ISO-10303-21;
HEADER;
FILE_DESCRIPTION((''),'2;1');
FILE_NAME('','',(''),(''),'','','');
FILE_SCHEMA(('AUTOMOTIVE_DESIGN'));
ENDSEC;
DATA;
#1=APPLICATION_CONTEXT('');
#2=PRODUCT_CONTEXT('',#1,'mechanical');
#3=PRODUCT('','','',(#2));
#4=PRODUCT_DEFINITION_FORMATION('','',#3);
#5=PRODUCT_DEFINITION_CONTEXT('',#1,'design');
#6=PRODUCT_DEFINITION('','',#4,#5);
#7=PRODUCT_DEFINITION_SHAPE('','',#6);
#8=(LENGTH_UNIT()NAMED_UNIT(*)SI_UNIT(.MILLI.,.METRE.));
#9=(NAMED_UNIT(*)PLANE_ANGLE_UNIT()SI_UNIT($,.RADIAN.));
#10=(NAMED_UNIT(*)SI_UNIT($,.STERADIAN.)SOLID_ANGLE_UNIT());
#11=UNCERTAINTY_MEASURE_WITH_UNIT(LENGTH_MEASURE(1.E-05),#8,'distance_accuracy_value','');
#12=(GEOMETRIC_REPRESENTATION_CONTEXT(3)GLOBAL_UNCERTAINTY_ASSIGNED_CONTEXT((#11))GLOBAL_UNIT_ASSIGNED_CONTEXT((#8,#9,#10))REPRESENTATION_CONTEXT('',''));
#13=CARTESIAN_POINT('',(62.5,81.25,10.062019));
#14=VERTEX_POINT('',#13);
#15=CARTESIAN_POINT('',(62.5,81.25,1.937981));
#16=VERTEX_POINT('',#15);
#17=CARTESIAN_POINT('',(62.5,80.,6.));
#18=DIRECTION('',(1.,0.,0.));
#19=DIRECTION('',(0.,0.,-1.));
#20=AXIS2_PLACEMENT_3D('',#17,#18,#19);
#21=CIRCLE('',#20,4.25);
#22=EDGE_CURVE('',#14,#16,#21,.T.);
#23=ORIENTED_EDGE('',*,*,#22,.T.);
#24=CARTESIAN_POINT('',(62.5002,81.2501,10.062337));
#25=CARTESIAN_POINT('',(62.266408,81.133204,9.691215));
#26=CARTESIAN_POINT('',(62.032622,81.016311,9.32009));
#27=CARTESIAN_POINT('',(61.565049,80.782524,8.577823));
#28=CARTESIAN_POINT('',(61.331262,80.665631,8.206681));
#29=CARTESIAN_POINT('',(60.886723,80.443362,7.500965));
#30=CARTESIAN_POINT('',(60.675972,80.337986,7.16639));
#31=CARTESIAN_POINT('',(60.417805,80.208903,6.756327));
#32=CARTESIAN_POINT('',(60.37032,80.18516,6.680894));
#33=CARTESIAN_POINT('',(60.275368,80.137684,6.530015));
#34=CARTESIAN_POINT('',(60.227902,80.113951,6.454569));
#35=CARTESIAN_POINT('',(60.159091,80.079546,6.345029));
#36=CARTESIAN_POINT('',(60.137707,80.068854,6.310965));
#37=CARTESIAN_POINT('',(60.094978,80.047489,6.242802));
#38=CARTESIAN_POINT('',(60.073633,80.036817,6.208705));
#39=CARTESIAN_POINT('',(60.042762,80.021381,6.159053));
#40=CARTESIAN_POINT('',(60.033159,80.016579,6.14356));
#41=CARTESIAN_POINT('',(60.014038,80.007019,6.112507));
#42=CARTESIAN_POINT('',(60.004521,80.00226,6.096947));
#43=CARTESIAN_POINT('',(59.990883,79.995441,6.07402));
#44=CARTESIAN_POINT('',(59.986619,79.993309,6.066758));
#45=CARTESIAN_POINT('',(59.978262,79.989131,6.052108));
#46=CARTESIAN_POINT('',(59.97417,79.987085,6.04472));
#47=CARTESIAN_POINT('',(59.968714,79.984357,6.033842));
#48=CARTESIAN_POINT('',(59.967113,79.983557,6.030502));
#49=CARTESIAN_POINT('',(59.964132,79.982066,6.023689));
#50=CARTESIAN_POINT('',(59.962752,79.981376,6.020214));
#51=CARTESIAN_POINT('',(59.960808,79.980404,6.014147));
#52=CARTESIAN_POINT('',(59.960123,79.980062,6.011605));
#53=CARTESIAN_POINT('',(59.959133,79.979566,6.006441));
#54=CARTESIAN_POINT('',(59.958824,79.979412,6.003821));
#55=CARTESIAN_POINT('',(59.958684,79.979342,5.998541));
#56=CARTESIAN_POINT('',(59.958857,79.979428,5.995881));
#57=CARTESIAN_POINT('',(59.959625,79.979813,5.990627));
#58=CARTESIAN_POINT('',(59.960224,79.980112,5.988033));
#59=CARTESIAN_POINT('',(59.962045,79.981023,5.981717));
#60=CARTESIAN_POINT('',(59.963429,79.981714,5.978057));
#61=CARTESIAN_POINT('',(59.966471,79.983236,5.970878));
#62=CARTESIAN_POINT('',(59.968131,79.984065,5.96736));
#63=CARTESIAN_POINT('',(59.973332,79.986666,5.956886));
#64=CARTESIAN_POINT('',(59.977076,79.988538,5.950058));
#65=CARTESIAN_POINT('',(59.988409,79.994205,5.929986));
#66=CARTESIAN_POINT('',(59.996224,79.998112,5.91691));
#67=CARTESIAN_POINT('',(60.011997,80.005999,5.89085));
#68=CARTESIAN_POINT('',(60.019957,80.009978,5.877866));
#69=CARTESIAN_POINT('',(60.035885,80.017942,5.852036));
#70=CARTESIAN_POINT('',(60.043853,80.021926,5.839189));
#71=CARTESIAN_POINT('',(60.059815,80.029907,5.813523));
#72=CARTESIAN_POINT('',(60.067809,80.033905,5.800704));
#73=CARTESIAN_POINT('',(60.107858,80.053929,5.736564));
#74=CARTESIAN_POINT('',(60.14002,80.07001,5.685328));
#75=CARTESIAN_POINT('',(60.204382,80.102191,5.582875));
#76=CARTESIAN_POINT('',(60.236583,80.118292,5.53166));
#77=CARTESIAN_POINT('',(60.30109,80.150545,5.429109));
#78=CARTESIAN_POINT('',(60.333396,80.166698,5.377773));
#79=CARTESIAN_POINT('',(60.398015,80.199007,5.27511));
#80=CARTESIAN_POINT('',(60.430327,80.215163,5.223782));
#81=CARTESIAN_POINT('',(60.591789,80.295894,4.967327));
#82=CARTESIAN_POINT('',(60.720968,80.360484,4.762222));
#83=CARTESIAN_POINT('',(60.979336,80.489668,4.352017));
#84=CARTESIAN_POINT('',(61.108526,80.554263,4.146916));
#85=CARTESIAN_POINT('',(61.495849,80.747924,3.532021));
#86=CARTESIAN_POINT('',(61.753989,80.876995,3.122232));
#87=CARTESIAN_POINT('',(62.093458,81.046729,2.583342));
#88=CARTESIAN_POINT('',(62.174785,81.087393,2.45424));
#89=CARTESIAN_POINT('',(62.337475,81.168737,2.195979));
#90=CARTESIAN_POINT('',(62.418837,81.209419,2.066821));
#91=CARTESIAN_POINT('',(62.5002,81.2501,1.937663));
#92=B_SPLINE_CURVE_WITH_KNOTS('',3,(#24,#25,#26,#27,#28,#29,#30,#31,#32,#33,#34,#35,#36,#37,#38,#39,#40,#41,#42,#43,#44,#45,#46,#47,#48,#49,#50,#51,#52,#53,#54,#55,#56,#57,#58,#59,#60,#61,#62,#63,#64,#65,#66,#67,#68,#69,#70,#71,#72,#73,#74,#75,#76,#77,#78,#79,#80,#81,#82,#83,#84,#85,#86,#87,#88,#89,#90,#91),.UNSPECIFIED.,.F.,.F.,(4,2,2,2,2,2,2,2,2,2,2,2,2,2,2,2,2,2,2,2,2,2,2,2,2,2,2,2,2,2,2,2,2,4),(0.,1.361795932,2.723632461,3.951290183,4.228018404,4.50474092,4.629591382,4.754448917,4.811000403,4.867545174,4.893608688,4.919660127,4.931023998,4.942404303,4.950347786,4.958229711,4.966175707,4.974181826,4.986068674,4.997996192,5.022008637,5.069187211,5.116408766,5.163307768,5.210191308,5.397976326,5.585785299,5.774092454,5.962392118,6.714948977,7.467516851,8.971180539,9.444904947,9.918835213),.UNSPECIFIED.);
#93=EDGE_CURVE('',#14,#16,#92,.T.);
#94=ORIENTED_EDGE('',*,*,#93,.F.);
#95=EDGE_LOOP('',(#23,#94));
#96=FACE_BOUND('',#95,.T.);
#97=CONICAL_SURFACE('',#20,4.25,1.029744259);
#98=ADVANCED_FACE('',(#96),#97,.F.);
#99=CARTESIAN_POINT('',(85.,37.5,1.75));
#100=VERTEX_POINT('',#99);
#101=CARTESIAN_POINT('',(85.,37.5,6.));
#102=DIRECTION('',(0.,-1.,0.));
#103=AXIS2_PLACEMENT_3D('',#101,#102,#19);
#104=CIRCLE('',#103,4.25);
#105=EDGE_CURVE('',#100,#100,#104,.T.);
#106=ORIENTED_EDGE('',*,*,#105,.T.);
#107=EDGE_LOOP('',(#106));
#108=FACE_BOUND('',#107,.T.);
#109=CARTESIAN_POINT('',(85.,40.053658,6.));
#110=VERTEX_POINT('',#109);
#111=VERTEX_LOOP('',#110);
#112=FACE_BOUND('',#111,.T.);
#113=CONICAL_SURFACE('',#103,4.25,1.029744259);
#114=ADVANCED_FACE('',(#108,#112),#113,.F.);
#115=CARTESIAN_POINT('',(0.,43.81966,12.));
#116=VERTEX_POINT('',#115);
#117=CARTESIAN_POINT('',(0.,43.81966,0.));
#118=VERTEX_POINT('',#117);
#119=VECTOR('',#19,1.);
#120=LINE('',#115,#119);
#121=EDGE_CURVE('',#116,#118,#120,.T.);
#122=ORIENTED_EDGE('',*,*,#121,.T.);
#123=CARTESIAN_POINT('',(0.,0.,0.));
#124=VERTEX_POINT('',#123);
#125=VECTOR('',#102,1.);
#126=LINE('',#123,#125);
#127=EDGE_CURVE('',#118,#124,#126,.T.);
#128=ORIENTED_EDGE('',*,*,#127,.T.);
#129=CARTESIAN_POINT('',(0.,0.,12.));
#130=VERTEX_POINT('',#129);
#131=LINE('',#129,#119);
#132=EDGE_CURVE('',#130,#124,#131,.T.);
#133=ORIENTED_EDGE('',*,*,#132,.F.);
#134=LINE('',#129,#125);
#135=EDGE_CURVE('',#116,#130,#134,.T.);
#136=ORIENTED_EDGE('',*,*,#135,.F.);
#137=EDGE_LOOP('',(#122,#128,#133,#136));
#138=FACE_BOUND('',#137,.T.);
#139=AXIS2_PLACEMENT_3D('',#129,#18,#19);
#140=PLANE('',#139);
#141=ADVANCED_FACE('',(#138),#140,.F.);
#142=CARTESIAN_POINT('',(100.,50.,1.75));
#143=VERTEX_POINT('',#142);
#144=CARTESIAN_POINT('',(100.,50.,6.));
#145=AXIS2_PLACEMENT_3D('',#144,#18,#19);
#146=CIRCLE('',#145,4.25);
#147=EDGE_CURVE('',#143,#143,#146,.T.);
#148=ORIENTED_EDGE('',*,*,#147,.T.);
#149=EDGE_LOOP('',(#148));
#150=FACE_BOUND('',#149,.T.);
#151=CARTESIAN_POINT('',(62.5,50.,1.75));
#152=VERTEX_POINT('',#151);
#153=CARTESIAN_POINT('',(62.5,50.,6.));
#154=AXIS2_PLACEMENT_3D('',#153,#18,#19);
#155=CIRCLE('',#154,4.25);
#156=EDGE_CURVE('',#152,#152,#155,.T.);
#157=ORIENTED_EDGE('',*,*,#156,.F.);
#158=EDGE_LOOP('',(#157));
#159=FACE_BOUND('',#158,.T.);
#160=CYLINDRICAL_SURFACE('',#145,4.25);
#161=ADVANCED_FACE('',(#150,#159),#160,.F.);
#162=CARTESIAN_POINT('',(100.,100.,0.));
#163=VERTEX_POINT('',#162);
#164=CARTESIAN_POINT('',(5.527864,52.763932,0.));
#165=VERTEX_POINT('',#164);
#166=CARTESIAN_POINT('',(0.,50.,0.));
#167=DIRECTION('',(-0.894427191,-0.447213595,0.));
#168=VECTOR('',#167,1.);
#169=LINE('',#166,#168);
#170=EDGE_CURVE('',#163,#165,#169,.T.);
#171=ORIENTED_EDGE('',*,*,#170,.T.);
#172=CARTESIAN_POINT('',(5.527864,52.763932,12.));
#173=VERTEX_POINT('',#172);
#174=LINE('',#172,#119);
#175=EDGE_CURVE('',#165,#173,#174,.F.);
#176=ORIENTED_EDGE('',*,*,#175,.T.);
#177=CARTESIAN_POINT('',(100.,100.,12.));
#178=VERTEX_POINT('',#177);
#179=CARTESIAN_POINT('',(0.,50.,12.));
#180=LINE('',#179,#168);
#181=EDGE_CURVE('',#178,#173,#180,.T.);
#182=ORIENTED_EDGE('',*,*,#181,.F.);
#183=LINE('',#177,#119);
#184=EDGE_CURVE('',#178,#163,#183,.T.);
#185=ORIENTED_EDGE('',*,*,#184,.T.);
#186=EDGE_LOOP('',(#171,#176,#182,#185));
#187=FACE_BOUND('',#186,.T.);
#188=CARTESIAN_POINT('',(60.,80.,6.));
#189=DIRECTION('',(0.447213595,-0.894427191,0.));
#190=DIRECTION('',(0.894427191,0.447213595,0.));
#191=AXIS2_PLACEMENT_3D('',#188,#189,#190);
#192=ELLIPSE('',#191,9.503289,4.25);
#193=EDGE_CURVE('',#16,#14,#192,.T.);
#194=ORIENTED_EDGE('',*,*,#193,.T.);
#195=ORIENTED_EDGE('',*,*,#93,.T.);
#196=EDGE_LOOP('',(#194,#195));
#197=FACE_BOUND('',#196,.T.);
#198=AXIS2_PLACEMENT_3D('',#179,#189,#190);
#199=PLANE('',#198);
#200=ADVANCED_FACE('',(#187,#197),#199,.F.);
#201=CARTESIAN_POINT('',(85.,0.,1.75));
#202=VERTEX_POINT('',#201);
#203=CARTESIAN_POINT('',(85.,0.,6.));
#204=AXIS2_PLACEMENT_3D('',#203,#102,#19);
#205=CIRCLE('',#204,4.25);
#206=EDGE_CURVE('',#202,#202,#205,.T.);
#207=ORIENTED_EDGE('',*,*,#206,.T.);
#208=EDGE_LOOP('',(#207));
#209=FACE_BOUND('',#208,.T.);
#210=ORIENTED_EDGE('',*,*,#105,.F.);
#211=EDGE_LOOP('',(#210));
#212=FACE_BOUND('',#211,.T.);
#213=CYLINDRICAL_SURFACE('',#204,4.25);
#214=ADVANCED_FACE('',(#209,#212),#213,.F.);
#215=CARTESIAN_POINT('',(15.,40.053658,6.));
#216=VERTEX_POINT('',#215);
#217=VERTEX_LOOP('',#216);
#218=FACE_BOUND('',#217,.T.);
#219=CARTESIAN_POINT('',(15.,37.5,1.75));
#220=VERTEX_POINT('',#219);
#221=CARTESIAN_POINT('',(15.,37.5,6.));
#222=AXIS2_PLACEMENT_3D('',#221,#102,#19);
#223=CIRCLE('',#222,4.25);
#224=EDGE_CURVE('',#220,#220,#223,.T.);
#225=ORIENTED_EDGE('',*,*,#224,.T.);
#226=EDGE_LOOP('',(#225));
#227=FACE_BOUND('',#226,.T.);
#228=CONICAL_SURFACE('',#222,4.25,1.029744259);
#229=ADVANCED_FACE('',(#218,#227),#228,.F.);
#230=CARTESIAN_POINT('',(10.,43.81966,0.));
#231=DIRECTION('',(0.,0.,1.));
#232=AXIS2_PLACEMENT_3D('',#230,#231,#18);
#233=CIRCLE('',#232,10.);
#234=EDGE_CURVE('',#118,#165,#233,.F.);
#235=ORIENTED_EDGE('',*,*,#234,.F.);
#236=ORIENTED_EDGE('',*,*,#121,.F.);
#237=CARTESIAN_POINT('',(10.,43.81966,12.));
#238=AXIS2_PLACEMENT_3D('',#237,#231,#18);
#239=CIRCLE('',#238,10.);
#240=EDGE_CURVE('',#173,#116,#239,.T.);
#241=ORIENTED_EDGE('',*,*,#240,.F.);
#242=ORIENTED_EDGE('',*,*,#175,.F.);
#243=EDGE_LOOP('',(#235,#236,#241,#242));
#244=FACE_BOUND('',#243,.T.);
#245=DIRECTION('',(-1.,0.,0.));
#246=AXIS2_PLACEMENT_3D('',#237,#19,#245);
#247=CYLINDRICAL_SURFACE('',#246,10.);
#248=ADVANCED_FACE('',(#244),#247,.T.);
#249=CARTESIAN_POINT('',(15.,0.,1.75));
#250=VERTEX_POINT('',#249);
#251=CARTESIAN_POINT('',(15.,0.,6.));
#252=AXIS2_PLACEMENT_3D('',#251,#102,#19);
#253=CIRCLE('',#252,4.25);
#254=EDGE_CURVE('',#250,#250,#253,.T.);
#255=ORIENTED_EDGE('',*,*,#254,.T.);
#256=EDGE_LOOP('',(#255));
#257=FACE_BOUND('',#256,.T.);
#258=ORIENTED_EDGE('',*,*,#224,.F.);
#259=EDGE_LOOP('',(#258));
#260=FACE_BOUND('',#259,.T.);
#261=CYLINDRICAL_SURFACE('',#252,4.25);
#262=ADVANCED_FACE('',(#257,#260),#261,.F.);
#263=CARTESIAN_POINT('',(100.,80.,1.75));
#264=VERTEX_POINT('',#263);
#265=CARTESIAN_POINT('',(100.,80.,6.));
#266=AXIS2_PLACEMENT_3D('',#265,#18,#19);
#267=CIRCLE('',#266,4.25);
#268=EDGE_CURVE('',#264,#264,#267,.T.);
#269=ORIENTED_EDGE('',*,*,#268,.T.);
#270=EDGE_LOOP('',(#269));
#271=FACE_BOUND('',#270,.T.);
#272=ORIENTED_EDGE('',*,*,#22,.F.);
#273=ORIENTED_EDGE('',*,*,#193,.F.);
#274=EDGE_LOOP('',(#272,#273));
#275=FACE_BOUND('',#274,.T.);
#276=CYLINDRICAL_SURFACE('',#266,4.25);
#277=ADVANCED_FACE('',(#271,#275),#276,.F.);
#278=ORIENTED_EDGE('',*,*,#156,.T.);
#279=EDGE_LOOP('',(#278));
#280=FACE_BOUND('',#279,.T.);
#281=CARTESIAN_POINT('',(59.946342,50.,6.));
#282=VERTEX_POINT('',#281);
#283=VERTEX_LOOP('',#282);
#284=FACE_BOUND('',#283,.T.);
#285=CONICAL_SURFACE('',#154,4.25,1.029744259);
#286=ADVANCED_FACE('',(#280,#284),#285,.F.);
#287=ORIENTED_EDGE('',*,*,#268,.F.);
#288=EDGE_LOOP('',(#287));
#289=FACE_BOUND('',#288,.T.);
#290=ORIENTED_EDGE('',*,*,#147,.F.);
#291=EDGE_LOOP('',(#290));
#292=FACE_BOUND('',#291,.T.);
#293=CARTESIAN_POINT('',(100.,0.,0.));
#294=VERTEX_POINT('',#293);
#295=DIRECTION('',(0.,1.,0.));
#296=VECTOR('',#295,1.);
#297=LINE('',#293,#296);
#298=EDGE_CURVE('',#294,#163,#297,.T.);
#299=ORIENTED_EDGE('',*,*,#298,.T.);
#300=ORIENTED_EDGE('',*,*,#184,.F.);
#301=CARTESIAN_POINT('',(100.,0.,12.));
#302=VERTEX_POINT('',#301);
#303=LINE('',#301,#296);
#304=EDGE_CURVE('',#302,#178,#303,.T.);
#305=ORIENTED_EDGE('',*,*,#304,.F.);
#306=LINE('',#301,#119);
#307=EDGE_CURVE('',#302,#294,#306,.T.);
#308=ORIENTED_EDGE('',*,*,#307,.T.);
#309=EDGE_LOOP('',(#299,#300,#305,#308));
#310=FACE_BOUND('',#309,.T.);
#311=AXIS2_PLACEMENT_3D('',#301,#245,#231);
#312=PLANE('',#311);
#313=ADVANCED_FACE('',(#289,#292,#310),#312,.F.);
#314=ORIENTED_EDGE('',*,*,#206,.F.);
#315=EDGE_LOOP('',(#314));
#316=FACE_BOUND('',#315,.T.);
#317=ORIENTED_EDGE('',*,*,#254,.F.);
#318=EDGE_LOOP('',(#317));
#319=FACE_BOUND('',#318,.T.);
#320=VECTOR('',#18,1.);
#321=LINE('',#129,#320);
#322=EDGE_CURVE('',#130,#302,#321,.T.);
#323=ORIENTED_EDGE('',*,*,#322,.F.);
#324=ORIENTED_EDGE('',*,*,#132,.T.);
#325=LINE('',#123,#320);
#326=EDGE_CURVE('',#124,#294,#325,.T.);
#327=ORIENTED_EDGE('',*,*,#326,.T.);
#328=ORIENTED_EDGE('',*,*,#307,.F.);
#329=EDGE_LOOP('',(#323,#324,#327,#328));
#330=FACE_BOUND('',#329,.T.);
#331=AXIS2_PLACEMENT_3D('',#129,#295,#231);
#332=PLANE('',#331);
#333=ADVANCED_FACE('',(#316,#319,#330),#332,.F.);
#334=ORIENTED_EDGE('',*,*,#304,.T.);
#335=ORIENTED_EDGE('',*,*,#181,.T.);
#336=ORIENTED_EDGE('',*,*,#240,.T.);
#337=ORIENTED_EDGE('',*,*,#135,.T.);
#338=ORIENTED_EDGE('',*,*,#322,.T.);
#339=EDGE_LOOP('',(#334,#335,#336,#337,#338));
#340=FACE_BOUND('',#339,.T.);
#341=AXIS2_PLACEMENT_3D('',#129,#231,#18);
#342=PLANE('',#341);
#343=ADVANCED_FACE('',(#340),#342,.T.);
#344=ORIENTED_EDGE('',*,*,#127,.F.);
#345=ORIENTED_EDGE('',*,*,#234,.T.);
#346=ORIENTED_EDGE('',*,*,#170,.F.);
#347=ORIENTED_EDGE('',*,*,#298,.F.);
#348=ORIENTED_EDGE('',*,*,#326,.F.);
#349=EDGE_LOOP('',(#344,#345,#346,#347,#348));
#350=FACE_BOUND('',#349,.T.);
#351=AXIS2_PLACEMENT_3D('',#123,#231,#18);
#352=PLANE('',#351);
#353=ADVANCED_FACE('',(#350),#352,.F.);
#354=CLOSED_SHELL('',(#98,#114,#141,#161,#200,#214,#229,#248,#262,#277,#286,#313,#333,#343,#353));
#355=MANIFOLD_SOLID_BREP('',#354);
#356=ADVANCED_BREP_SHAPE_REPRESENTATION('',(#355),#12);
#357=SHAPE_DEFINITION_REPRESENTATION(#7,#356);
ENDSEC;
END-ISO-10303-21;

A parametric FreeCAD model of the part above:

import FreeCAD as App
import Part
import Sketcher


def edges_at(feature, points):
    """Names of the edges that pass closest to the given points."""
    edges = feature.Shape.Edges
    near = lambda p: min(range(len(edges)), key=lambda i: edges[i].distToShape(Part.Vertex(*p))[0])
    return sorted({f"Edge{near(p) + 1}" for p in points})

doc = App.newDocument("Part")
body = doc.addObject("PartDesign::Body", "Body")

# Sketch on XY plane
sketch1 = doc.addObject("Sketcher::SketchObject", "Sketch")
body.addObject(sketch1)
sketch1.AttachmentSupport = (doc.XY_Plane, [""])
sketch1.MapMode = "FlatFace"
sketch1.addGeometry([
    Part.LineSegment(App.Vector(100, 0, 0), App.Vector(100, 100, 0)),
    Part.LineSegment(App.Vector(100, 100, 0), App.Vector(0, 50, 0)),
    Part.LineSegment(App.Vector(0, 50, 0), App.Vector(0, 0, 0)),
    Part.LineSegment(App.Vector(0, 0, 0), App.Vector(100, 0, 0)),
], False)
sketch1.addConstraint([
    Sketcher.Constraint("Coincident", 0, 2, 1, 1),
    Sketcher.Constraint("Coincident", 1, 2, 2, 1),
    Sketcher.Constraint("Coincident", 2, 2, 3, 1),
    Sketcher.Constraint("Coincident", 3, 2, 0, 1),
    Sketcher.Constraint("Vertical", 0),
    Sketcher.Constraint("Vertical", 2),
    Sketcher.Constraint("Horizontal", 3),
    Sketcher.Constraint("Coincident", 2, 2, -1, 1),
    Sketcher.Constraint("Equal", 3, 0),
    Sketcher.Constraint("DistanceX", 3, 1, 3, 2, 100.0),
    Sketcher.Constraint("DistanceY", 2, 2, 2, 1, 50.0),
])
pad1 = doc.addObject("PartDesign::Pad", "Pad")
body.addObject(pad1)
pad1.Profile = sketch1
pad1.Length = 12

# Sketch on XZ plane
sketch2 = doc.addObject("Sketcher::SketchObject", "Sketch001")
body.addObject(sketch2)
sketch2.AttachmentSupport = (doc.XZ_Plane, [""])
sketch2.MapMode = "FlatFace"
sketch2.addGeometry([
    Part.Circle(App.Vector(15, 6, 0), App.Vector(0, 0, 1), 4.2),
    Part.Circle(App.Vector(85, 6, 0), App.Vector(0, 0, 1), 4.2),
], False)
sketch2.addConstraint([
    Sketcher.Constraint("Equal", 0, 1),
    Sketcher.Constraint("Horizontal", 0, 3, 1, 3),
    Sketcher.Constraint("Diameter", 0, 8.5),
    Sketcher.Constraint("DistanceX", -1, 1, 0, 3, 15.0),
    Sketcher.Constraint("DistanceY", -1, 1, 0, 3, 6.0),
    Sketcher.Constraint("DistanceX", -1, 1, 1, 3, 85.0),
])
doc.recompute()
hole = doc.addObject("PartDesign::Hole", "Hole")
body.addObject(hole)
hole.Profile = sketch2
hole.ThreadType = "None"
hole.Diameter = 8.5
hole.DepthType = "Dimension"
hole.Depth = 37.5
hole.DrillPoint = "Angled"
hole.DrillPointAngle = 118

# Sketch on YZ plane
sketch3 = doc.addObject("Sketcher::SketchObject", "Sketch002")
body.addObject(sketch3)
sketch3.AttachmentSupport = (doc.YZ_Plane, [""])
sketch3.MapMode = "FlatFace"
sketch3.AttachmentOffset = App.Placement(App.Vector(0, 0, 100), App.Rotation())
sketch3.addGeometry([
    Part.Circle(App.Vector(50, 6, 0), App.Vector(0, 0, 1), 4.2),
    Part.Circle(App.Vector(80, 6, 0), App.Vector(0, 0, 1), 4.2),
], False)
sketch3.addConstraint([
    Sketcher.Constraint("Equal", 0, 1),
    Sketcher.Constraint("Horizontal", 0, 3, 1, 3),
    Sketcher.Constraint("Diameter", 0, 8.5),
    Sketcher.Constraint("DistanceX", -1, 1, 0, 3, 50.0),
    Sketcher.Constraint("DistanceY", -1, 1, 0, 3, 6.0),
    Sketcher.Constraint("DistanceX", -1, 1, 1, 3, 80.0),
])
doc.recompute()
hole2 = doc.addObject("PartDesign::Hole", "Hole001")
body.addObject(hole2)
hole2.Profile = sketch3
hole2.ThreadType = "None"
hole2.Diameter = 8.5
hole2.DepthType = "Dimension"
hole2.Depth = 37.5
hole2.DrillPoint = "Angled"
hole2.DrillPointAngle = 118
doc.recompute()

fillet = doc.addObject("PartDesign::Fillet", "Fillet")
body.addObject(fillet)
fillet.Base = (hole2, edges_at(hole2, [(0, 50, 6)]))
fillet.Radius = 10

doc.recompute()
